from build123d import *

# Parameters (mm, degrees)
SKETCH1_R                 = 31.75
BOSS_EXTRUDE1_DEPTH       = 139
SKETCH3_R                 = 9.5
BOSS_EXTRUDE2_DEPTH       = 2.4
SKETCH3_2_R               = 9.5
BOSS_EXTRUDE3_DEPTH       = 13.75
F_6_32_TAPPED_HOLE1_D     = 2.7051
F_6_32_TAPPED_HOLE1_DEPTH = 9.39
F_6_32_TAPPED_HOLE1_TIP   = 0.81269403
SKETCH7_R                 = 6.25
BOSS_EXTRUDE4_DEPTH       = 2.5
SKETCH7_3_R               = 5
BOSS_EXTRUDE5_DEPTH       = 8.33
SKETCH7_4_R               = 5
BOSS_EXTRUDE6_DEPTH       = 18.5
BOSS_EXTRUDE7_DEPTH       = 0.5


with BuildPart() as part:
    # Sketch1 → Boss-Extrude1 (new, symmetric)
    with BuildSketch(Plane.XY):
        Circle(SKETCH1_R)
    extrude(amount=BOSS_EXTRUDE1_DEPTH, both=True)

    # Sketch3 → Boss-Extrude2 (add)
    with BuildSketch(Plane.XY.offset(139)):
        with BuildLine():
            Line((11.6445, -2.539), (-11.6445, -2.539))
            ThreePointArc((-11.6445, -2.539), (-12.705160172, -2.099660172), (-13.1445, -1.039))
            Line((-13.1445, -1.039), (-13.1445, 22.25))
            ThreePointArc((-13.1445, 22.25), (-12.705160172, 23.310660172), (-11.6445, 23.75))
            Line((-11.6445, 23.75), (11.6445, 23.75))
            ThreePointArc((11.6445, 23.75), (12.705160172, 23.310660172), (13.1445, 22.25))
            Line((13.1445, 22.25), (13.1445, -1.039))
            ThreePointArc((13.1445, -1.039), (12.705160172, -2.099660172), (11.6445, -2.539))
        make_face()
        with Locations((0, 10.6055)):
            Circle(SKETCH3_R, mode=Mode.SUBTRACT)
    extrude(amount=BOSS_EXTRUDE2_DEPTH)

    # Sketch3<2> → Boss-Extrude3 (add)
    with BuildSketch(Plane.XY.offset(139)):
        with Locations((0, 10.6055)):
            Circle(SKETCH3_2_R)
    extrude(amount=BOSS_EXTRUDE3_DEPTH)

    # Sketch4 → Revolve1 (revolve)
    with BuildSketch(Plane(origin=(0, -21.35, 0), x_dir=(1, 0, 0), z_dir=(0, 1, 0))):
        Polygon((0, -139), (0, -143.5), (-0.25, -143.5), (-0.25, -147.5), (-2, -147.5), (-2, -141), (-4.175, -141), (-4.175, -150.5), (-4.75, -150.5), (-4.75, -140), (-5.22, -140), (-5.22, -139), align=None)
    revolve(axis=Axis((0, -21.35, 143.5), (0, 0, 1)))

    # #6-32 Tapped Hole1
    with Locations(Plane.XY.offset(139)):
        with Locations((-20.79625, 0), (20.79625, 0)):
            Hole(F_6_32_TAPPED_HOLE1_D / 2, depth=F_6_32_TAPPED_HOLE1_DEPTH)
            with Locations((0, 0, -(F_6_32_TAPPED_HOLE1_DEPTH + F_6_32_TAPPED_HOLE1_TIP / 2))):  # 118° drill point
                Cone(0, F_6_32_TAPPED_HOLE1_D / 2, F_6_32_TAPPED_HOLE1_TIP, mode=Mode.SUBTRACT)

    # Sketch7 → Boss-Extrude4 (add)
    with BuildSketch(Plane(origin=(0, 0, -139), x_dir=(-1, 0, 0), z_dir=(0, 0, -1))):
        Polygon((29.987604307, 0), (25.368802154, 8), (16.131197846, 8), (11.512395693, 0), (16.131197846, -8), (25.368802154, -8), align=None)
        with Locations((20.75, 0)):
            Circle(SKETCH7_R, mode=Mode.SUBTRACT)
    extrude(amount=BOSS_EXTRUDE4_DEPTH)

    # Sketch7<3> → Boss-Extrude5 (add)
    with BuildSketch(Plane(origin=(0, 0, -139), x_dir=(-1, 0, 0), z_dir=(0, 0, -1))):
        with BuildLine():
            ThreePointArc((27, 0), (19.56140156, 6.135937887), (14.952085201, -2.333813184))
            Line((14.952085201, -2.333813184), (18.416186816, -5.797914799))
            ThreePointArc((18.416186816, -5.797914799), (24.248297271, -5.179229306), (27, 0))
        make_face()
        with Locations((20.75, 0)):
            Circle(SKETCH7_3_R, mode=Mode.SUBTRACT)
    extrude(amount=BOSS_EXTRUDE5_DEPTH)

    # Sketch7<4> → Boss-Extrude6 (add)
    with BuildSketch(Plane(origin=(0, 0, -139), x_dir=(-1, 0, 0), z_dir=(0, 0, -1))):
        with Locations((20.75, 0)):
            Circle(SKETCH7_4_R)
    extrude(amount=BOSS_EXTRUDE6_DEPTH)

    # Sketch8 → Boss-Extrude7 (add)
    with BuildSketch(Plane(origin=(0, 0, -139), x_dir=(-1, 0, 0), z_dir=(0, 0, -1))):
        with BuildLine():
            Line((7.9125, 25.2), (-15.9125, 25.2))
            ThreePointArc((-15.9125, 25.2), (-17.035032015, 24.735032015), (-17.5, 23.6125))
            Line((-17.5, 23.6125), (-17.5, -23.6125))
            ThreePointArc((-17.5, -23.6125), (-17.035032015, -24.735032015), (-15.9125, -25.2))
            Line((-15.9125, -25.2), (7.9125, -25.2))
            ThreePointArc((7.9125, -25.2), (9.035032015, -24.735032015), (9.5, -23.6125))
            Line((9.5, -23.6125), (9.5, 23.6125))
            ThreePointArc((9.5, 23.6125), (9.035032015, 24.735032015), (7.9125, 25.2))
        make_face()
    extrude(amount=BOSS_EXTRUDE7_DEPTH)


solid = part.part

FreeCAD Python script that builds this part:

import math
import FreeCAD as App
import Part
import Sketcher
from FreeCAD import Vector
Q = App.Units.Quantity

doc = App.newDocument("Part")
body = doc.addObject("PartDesign::Body", "Body")

sketch1 = body.newObject("Sketcher::SketchObject", "Sketch")
sketch1.AttachmentSupport = (doc.getObject("XY_Plane"), [""])
sketch1.MapMode = "FlatFace"
sketch1.addGeometry(Part.Circle(Vector(0, 0, 0), Vector(0, 0, 1), 32), False)
sketch1.addConstraint(Sketcher.Constraint("Coincident", 0, 3, -1, 1))
sketch1.addConstraint(Sketcher.Constraint("Diameter", 0, Q("63.5 mm")))
pad1 = body.newObject("PartDesign::Pad", "Pad")
pad1.Profile = sketch1
pad1.Length = 278
pad1.Midplane = True

sketch2 = body.newObject("Sketcher::SketchObject", "Sketch001")
sketch2.AttachmentSupport = (doc.getObject("XY_Plane"), [""])
sketch2.MapMode = "FlatFace"
sketch2.AttachmentOffset = App.Placement(Vector(0, 0, 139), App.Rotation())
sketch2.addGeometry(Part.LineSegment(Vector(-11.6, -2.5, 0), Vector(11.6, -2.5, 0)), False)
sketch2.addGeometry(Part.ArcOfCircle(Part.Circle(Vector(11.6, -1, 0), Vector(0, 0, 1), 1.5), math.radians(-90), math.radians(0)), False)
sketch2.addGeometry(Part.LineSegment(Vector(13.1, -1, 0), Vector(13.1, 22.2, 0)), False)
sketch2.addGeometry(Part.ArcOfCircle(Part.Circle(Vector(11.6, 22.3, 0), Vector(0, 0, 1), 1.5), math.radians(0), math.radians(90)), False)
sketch2.addGeometry(Part.LineSegment(Vector(11.6, 23.8, 0), Vector(-11.6, 23.8, 0)), False)
sketch2.addGeometry(Part.ArcOfCircle(Part.Circle(Vector(-11.6, 22.3, 0), Vector(0, 0, 1), 1.5), math.radians(90), math.radians(180)), False)
sketch2.addGeometry(Part.LineSegment(Vector(-13.1, 22.2, 0), Vector(-13.1, -1, 0)), False)
sketch2.addGeometry(Part.ArcOfCircle(Part.Circle(Vector(-11.6, -1, 0), Vector(0, 0, 1), 1.5), math.radians(180), math.radians(270)), False)
sketch2.addGeometry(Part.Circle(Vector(0, 10.6, 0), Vector(0, 0, 1), 9.5), False)
sketch2.addConstraint(Sketcher.Constraint("Tangent", 0, 2, 1, 1))
sketch2.addConstraint(Sketcher.Constraint("Tangent", 1, 2, 2, 1))
sketch2.addConstraint(Sketcher.Constraint("Tangent", 2, 2, 3, 1))
sketch2.addConstraint(Sketcher.Constraint("Tangent", 3, 2, 4, 1))
sketch2.addConstraint(Sketcher.Constraint("Tangent", 4, 2, 5, 1))
sketch2.addConstraint(Sketcher.Constraint("Tangent", 5, 2, 6, 1))
sketch2.addConstraint(Sketcher.Constraint("Tangent", 6, 2, 7, 1))
sketch2.addConstraint(Sketcher.Constraint("Tangent", 7, 2, 0, 1))
sketch2.addConstraint(Sketcher.Constraint("Horizontal", 0))
sketch2.addConstraint(Sketcher.Constraint("Vertical", 2))
sketch2.addConstraint(Sketcher.Constraint("Horizontal", 4))
sketch2.addConstraint(Sketcher.Constraint("Vertical", 6))
sketch2.addConstraint(Sketcher.Constraint("Equal", 1, 3))
sketch2.addConstraint(Sketcher.Constraint("Equal", 3, 5))
sketch2.addConstraint(Sketcher.Constraint("Equal", 5, 7))
sketch2.addConstraint(Sketcher.Constraint("PointOnObject", 8, 3, -2))
sketch2.addConstraint(Sketcher.Constraint("Equal", 4, 2))
sketch2.addConstraint(Sketcher.Constraint("Diameter", 8, Q("19 mm")))
sketch2.addConstraint(Sketcher.Constraint("Radius", 1, Q("1.5 mm")))
sketch2.addConstraint(Sketcher.Constraint("DistanceX", 0, 1, 0, 2, Q("23.289 mm")))
sketch2.addConstraint(Sketcher.Constraint("DistanceY", -1, 1, 3, 3, Q("22.25 mm")))
sketch2.addConstraint(Sketcher.Constraint("DistanceX", -1, 1, 1, 3, Q("11.6445 mm")))
sketch2.addConstraint(Sketcher.Constraint("DistanceY", -1, 1, 8, 3, Q("10.6055 mm")))
pad2 = body.newObject("PartDesign::Pad", "Pad001")
pad2.Profile = sketch2
pad2.Length = 2.4

sketch3 = body.newObject("Sketcher::SketchObject", "Sketch002")
sketch3.AttachmentSupport = (doc.getObject("XY_Plane"), [""])
sketch3.MapMode = "FlatFace"
sketch3.AttachmentOffset = App.Placement(Vector(0, 0, 139), App.Rotation())
sketch3.addGeometry(Part.Circle(Vector(0, 11, 0), Vector(0, 0, 1), 10), False)
sketch3.addConstraint(Sketcher.Constraint("PointOnObject", 0, 3, -2))
sketch3.addConstraint(Sketcher.Constraint("Diameter", 0, Q("19 mm")))
sketch3.addConstraint(Sketcher.Constraint("DistanceY", -1, 1, 0, 3, Q("10.6055 mm")))
pad3 = body.newObject("PartDesign::Pad", "Pad002")
pad3.Profile = sketch3
pad3.Length = 13.75

sketch4 = body.newObject("Sketcher::SketchObject", "Sketch003")
sketch4.AttachmentSupport = (doc.getObject("XZ_Plane"), [""])
sketch4.MapMode = "FlatFace"
sketch4.AttachmentOffset = App.Placement(Vector(0, 0, 21.35), App.Rotation())
sketch4.addGeometry(Part.LineSegment(Vector(0, 143.5, 0), Vector(0, 139, 0)), False)
sketch4.addGeometry(Part.LineSegment(Vector(0, 139, 0), Vector(-5.22, 139, 0)), False)
sketch4.addGeometry(Part.LineSegment(Vector(-5.22, 139, 0), Vector(-5.22, 140, 0)), False)
sketch4.addGeometry(Part.LineSegment(Vector(-5.22, 140, 0), Vector(-4.75, 140, 0)), False)
sketch4.addGeometry(Part.LineSegment(Vector(-4.75, 140, 0), Vector(-4.75, 150.5, 0)), False)
sketch4.addGeometry(Part.LineSegment(Vector(-4.75, 150.5, 0), Vector(-4.17, 150.5, 0)), False)
sketch4.addGeometry(Part.LineSegment(Vector(-4.17, 150.5, 0), Vector(-4.17, 141, 0)), False)
sketch4.addGeometry(Part.LineSegment(Vector(-4.17, 141, 0), Vector(-2, 141, 0)), False)
sketch4.addGeometry(Part.LineSegment(Vector(-2, 141, 0), Vector(-2, 147.5, 0)), False)
sketch4.addGeometry(Part.LineSegment(Vector(-2, 147.5, 0), Vector(-0.25, 147.5, 0)), False)
sketch4.addGeometry(Part.LineSegment(Vector(-0.25, 147.5, 0), Vector(-0.25, 143.5, 0)), False)
sketch4.addGeometry(Part.LineSegment(Vector(-0.25, 143.5, 0), Vector(0, 143.5, 0)), False)
sketch4.addConstraint(Sketcher.Constraint("Coincident", 0, 2, 1, 1))
sketch4.addConstraint(Sketcher.Constraint("Coincident", 1, 2, 2, 1))
sketch4.addConstraint(Sketcher.Constraint("Coincident", 2, 2, 3, 1))
sketch4.addConstraint(Sketcher.Constraint("Coincident", 3, 2, 4, 1))
sketch4.addConstraint(Sketcher.Constraint("Coincident", 4, 2, 5, 1))
sketch4.addConstraint(Sketcher.Constraint("Coincident", 5, 2, 6, 1))
sketch4.addConstraint(Sketcher.Constraint("Coincident", 6, 2, 7, 1))
sketch4.addConstraint(Sketcher.Constraint("Coincident", 7, 2, 8, 1))
sketch4.addConstraint(Sketcher.Constraint("Coincident", 8, 2, 9, 1))
sketch4.addConstraint(Sketcher.Constraint("Coincident", 9, 2, 10, 1))
sketch4.addConstraint(Sketcher.Constraint("Coincident", 10, 2, 11, 1))
sketch4.addConstraint(Sketcher.Constraint("Coincident", 11, 2, 0, 1))
sketch4.addConstraint(Sketcher.Constraint("Vertical", 0))
sketch4.addConstraint(Sketcher.Constraint("Horizontal", 1))
sketch4.addConstraint(Sketcher.Constraint("Vertical", 2))
sketch4.addConstraint(Sketcher.Constraint("Horizontal", 3))
sketch4.addConstraint(Sketcher.Constraint("Vertical", 4))
sketch4.addConstraint(Sketcher.Constraint("Horizontal", 5))
sketch4.addConstraint(Sketcher.Constraint("Vertical", 6))
sketch4.addConstraint(Sketcher.Constraint("Horizontal", 7))
sketch4.addConstraint(Sketcher.Constraint("Vertical", 8))
sketch4.addConstraint(Sketcher.Constraint("Horizontal", 9))
sketch4.addConstraint(Sketcher.Constraint("Vertical", 10))
sketch4.addConstraint(Sketcher.Constraint("Horizontal", 11))
sketch4.addConstraint(Sketcher.Constraint("PointOnObject", 0, 2, -2))
sketch4.addConstraint(Sketcher.Constraint("DistanceY", 2, 1, 2, 2, Q("1 mm")))
sketch4.addConstraint(Sketcher.Constraint("DistanceY", 10, 2, 10, 1, Q("4 mm")))
sketch4.addConstraint(Sketcher.Constraint("DistanceY", 0, 2, 0, 1, Q("4.5 mm")))
sketch4.addConstraint(Sketcher.Constraint("DistanceY", 4, 1, 4, 2, Q("10.5 mm")))
sketch4.addConstraint(Sketcher.Constraint("DistanceY", 6, 2, 6, 1, Q("9.5 mm")))
sketch4.addConstraint(Sketcher.Constraint("DistanceY", -1, 1, 0, 2, Q("139 mm")))
sketch4.addConstraint(Sketcher.Constraint("DistanceX", 7, 2, -1, 1, Q("2 mm")))
sketch4.addConstraint(Sketcher.Constraint("DistanceX", 1, 2, 1, 1, Q("5.22 mm")))
sketch4.addConstraint(Sketcher.Constraint("DistanceX", 3, 1, 3, 2, Q("0.47 mm")))
sketch4.addConstraint(Sketcher.Constraint("DistanceX", 9, 1, 9, 2, Q("1.75 mm")))
sketch4.addConstraint(Sketcher.Constraint("DistanceX", 5, 1, 5, 2, Q("0.575 mm")))
revolution = body.newObject("PartDesign::Revolution", "Revolution")
revolution.Profile = sketch4
revolution.ReferenceAxis = (sketch4, ["V_Axis"])
revolution.Angle = 360

sketch5 = body.newObject("Sketcher::SketchObject", "Sketch004")
sketch5.AttachmentSupport = (doc.getObject("XY_Plane"), [""])
sketch5.MapMode = "FlatFace"
sketch5.AttachmentOffset = App.Placement(Vector(0, 0, 139), App.Rotation())
sketch5.addGeometry(Part.Circle(Vector(-20.8, 0, 0), Vector(0, 0, 1), 1.4), False)
sketch5.addGeometry(Part.Circle(Vector(20.8, 0, 0), Vector(0, 0, 1), 1.4), False)
sketch5.addConstraint(Sketcher.Constraint("Equal", 0, 1))
sketch5.addConstraint(Sketcher.Constraint("Symmetric", 0, 3, 1, 3, -1, 1))
sketch5.addConstraint(Sketcher.Constraint("PointOnObject", 0, 3, -1))
sketch5.addConstraint(Sketcher.Constraint("Diameter", 0, Q("2.7051 mm")))
sketch5.addConstraint(Sketcher.Constraint("DistanceX", 0, 3, 1, 3, Q("41.5925 mm")))
doc.recompute()
hole = body.newObject("PartDesign::Hole", "Hole")
hole.Profile = sketch5
hole.ThreadType = "None"
hole.Diameter = 2.7051
hole.DepthType = "Dimension"
hole.Depth = 9.39
hole.DrillPoint = "Angled"
hole.DrillPointAngle = 118

sketch6 = body.newObject("Sketcher::SketchObject", "Sketch005")
sketch6.AttachmentSupport = (doc.getObject("XY_Plane"), [""])
sketch6.MapMode = "FlatFace"
sketch6.AttachmentOffset = App.Placement(Vector(0, 0, -139), App.Rotation())
sketch6.addGeometry(Part.LineSegment(Vector(-30, 0, 0), Vector(-25, 8, 0)), False)
sketch6.addGeometry(Part.LineSegment(Vector(-25, 8, 0), Vector(-16, 8, 0)), False)
sketch6.addGeometry(Part.LineSegment(Vector(-16, 8, 0), Vector(-12, 0, 0)), False)
sketch6.addGeometry(Part.LineSegment(Vector(-12, 0, 0), Vector(-16, -8, 0)), False)
sketch6.addGeometry(Part.LineSegment(Vector(-16, -8, 0), Vector(-25, -8, 0)), False)
sketch6.addGeometry(Part.LineSegment(Vector(-25, -8, 0), Vector(-30, 0, 0)), False)
sketch6.addGeometry(Part.Circle(Vector(-21, 0, 0), Vector(0, 0, 1), 6), False)
sketch6.addConstraint(Sketcher.Constraint("Coincident", 0, 2, 1, 1))
sketch6.addConstraint(Sketcher.Constraint("Coincident", 1, 2, 2, 1))
sketch6.addConstraint(Sketcher.Constraint("Coincident", 2, 2, 3, 1))
sketch6.addConstraint(Sketcher.Constraint("Coincident", 3, 2, 4, 1))
sketch6.addConstraint(Sketcher.Constraint("Coincident", 4, 2, 5, 1))
sketch6.addConstraint(Sketcher.Constraint("Coincident", 5, 2, 0, 1))
sketch6.addConstraint(Sketcher.Constraint("Horizontal", 1))
sketch6.addConstraint(Sketcher.Constraint("Horizontal", 4))
sketch6.addConstraint(Sketcher.Constraint("Symmetric", 1, 2, 3, 2, -1))
sketch6.addConstraint(Sketcher.Constraint("PointOnObject", 6, 3, -1))
sketch6.addConstraint(Sketcher.Constraint("PointOnObject", 2, 2, -1))
sketch6.addConstraint(Sketcher.Constraint("PointOnObject", 5, 2, -1))
sketch6.addConstraint(Sketcher.Constraint("Parallel", 0, 3))
sketch6.addConstraint(Sketcher.Constraint("Parallel", 2, 5))
sketch6.addConstraint(Sketcher.Constraint("Diameter", 6, Q("12.5 mm")))
sketch6.addConstraint(Sketcher.Constraint("Angle", 0, Q("60 deg")))
sketch6.addConstraint(Sketcher.Constraint("DistanceY", -1, 1, 0, 2, Q("8 mm")))
sketch6.addConstraint(Sketcher.Constraint("DistanceX", 6, 3, -1, 1, Q("20.75 mm")))
sketch6.addConstraint(Sketcher.Constraint("DistanceX", 1, 1, 1, 2, Q("9.237604 mm")))
sketch6.addConstraint(Sketcher.Constraint("DistanceX", 0, 2, -1, 1, Q("25.368802 mm")))
pad4 = body.newObject("PartDesign::Pad", "Pad003")
pad4.Profile = sketch6
pad4.Length = 2.5
pad4.Reversed = True

sketch7 = body.newObject("Sketcher::SketchObject", "Sketch006")
sketch7.AttachmentSupport = (doc.getObject("XY_Plane"), [""])
sketch7.MapMode = "FlatFace"
sketch7.AttachmentOffset = App.Placement(Vector(0, 0, -139), App.Rotation())
sketch7.addGeometry(Part.ArcOfCircle(Part.Circle(Vector(-20.8, 0, 0), Vector(0, 0, 1), 6.2), math.radians(-22), math.radians(180)), False)
sketch7.addGeometry(Part.LineSegment(Vector(-15, -2.3, 0), Vector(-18.4, -5.8, 0)), False)
sketch7.addGeometry(Part.ArcOfCircle(Part.Circle(Vector(-20.8, 0, 0), Vector(0, 0, 1), 6.2), math.radians(180), math.radians(292)), False)
sketch7.addGeometry(Part.Circle(Vector(-20.8, 0, 0), Vector(0, 0, 1), 5), False)
sketch7.addConstraint(Sketcher.Constraint("Coincident", 0, 1, 1, 1))
sketch7.addConstraint(Sketcher.Constraint("Coincident", 1, 2, 2, 2))
sketch7.addConstraint(Sketcher.Constraint("Tangent", 2, 1, 0, 2))
sketch7.addConstraint(Sketcher.Constraint("Coincident", 3, 3, 0, 3))
sketch7.addConstraint(Sketcher.Constraint("Equal", 0, 2))
sketch7.addConstraint(Sketcher.Constraint("PointOnObject", 0, 3, -1))
sketch7.addConstraint(Sketcher.Constraint("PointOnObject", 2, 1, -1))
sketch7.addConstraint(Sketcher.Constraint("Diameter", 3, Q("10 mm")))
sketch7.addConstraint(Sketcher.Constraint("Angle", 1, Q("-135 deg")))
sketch7.addConstraint(Sketcher.Constraint("Radius", 0, Q("6.25 mm")))
sketch7.addConstraint(Sketcher.Constraint("DistanceX", 2, 1, -1, 1, Q("27 mm")))
sketch7.addConstraint(Sketcher.Constraint("DistanceX", 1, 2, 0, 1, Q("3.464102 mm")))
pad5 = body.newObject("PartDesign::Pad", "Pad004")
pad5.Profile = sketch7
pad5.Length = 8.33
pad5.Reversed = True

sketch8 = body.newObject("Sketcher::SketchObject", "Sketch007")
sketch8.AttachmentSupport = (doc.getObject("XY_Plane"), [""])
sketch8.MapMode = "FlatFace"
sketch8.AttachmentOffset = App.Placement(Vector(0, 0, -139), App.Rotation())
sketch8.addGeometry(Part.Circle(Vector(-21, 0, 0), Vector(0, 0, 1), 5), False)
sketch8.addConstraint(Sketcher.Constraint("PointOnObject", 0, 3, -1))
sketch8.addConstraint(Sketcher.Constraint("Diameter", 0, Q("10 mm")))
sketch8.addConstraint(Sketcher.Constraint("DistanceX", 0, 3, -1, 1, Q("20.75 mm")))
pad6 = body.newObject("PartDesign::Pad", "Pad005")
pad6.Profile = sketch8
pad6.Length = 18.5
pad6.Reversed = True

sketch9 = body.newObject("Sketcher::SketchObject", "Sketch008")
sketch9.AttachmentSupport = (doc.getObject("XY_Plane"), [""])
sketch9.MapMode = "FlatFace"
sketch9.AttachmentOffset = App.Placement(Vector(0, 0, -139), App.Rotation())
sketch9.addGeometry(Part.LineSegment(Vector(-7.9, 25.2, 0), Vector(15.9, 25.2, 0)), False)
sketch9.addGeometry(Part.ArcOfCircle(Part.Circle(Vector(15.9, 23.6, 0), Vector(0, 0, 1), 1.6), math.radians(0), math.radians(90)), False)
sketch9.addGeometry(Part.LineSegment(Vector(17.5, 23.6, 0), Vector(17.5, -23.6, 0)), False)
sketch9.addGeometry(Part.ArcOfCircle(Part.Circle(Vector(15.9, -23.6, 0), Vector(0, 0, 1), 1.6), math.radians(-90), math.radians(0)), False)
sketch9.addGeometry(Part.LineSegment(Vector(15.9, -25.2, 0), Vector(-7.9, -25.2, 0)), False)
sketch9.addGeometry(Part.ArcOfCircle(Part.Circle(Vector(-7.9, -23.6, 0), Vector(0, 0, 1), 1.6), math.radians(180), math.radians(270)), False)
sketch9.addGeometry(Part.LineSegment(Vector(-9.5, -23.6, 0), Vector(-9.5, 23.6, 0)), False)
sketch9.addGeometry(Part.ArcOfCircle(Part.Circle(Vector(-7.9, 23.6, 0), Vector(0, 0, 1), 1.6), math.radians(90), math.radians(180)), False)
sketch9.addConstraint(Sketcher.Constraint("Tangent", 0, 2, 1, 2))
sketch9.addConstraint(Sketcher.Constraint("Tangent", 1, 1, 2, 1))
sketch9.addConstraint(Sketcher.Constraint("Tangent", 2, 2, 3, 2))
sketch9.addConstraint(Sketcher.Constraint("Tangent", 3, 1, 4, 1))
sketch9.addConstraint(Sketcher.Constraint("Tangent", 4, 2, 5, 2))
sketch9.addConstraint(Sketcher.Constraint("Tangent", 5, 1, 6, 1))
sketch9.addConstraint(Sketcher.Constraint("Tangent", 6, 2, 7, 2))
sketch9.addConstraint(Sketcher.Constraint("Tangent", 7, 1, 0, 1))
sketch9.addConstraint(Sketcher.Constraint("Horizontal", 0))
sketch9.addConstraint(Sketcher.Constraint("Vertical", 2))
sketch9.addConstraint(Sketcher.Constraint("Horizontal", 4))
sketch9.addConstraint(Sketcher.Constraint("Vertical", 6))
sketch9.addConstraint(Sketcher.Constraint("Equal", 1, 3))
sketch9.addConstraint(Sketcher.Constraint("Equal", 3, 5))
sketch9.addConstraint(Sketcher.Constraint("Equal", 5, 7))
sketch9.addConstraint(Sketcher.Constraint("DistanceX", 5, 1, 2, 2, Q("27 mm")))
sketch9.addConstraint(Sketcher.Constraint("DistanceY", -1, 1, 0, 2, Q("25.2 mm")))
sketch9.addConstraint(Sketcher.Constraint("DistanceX", -1, 1, 1, 1, Q("17.5 mm")))
sketch9.addConstraint(Sketcher.Constraint("DistanceY", 3, 1, -1, 1, Q("25.2 mm")))
sketch9.addConstraint(Sketcher.Constraint("Radius", 1, Q("1.5875 mm")))
pad7 = body.newObject("PartDesign::Pad", "Pad006")
pad7.Profile = sketch9
pad7.Length = 0.5
pad7.Reversed = True

doc.recompute()
